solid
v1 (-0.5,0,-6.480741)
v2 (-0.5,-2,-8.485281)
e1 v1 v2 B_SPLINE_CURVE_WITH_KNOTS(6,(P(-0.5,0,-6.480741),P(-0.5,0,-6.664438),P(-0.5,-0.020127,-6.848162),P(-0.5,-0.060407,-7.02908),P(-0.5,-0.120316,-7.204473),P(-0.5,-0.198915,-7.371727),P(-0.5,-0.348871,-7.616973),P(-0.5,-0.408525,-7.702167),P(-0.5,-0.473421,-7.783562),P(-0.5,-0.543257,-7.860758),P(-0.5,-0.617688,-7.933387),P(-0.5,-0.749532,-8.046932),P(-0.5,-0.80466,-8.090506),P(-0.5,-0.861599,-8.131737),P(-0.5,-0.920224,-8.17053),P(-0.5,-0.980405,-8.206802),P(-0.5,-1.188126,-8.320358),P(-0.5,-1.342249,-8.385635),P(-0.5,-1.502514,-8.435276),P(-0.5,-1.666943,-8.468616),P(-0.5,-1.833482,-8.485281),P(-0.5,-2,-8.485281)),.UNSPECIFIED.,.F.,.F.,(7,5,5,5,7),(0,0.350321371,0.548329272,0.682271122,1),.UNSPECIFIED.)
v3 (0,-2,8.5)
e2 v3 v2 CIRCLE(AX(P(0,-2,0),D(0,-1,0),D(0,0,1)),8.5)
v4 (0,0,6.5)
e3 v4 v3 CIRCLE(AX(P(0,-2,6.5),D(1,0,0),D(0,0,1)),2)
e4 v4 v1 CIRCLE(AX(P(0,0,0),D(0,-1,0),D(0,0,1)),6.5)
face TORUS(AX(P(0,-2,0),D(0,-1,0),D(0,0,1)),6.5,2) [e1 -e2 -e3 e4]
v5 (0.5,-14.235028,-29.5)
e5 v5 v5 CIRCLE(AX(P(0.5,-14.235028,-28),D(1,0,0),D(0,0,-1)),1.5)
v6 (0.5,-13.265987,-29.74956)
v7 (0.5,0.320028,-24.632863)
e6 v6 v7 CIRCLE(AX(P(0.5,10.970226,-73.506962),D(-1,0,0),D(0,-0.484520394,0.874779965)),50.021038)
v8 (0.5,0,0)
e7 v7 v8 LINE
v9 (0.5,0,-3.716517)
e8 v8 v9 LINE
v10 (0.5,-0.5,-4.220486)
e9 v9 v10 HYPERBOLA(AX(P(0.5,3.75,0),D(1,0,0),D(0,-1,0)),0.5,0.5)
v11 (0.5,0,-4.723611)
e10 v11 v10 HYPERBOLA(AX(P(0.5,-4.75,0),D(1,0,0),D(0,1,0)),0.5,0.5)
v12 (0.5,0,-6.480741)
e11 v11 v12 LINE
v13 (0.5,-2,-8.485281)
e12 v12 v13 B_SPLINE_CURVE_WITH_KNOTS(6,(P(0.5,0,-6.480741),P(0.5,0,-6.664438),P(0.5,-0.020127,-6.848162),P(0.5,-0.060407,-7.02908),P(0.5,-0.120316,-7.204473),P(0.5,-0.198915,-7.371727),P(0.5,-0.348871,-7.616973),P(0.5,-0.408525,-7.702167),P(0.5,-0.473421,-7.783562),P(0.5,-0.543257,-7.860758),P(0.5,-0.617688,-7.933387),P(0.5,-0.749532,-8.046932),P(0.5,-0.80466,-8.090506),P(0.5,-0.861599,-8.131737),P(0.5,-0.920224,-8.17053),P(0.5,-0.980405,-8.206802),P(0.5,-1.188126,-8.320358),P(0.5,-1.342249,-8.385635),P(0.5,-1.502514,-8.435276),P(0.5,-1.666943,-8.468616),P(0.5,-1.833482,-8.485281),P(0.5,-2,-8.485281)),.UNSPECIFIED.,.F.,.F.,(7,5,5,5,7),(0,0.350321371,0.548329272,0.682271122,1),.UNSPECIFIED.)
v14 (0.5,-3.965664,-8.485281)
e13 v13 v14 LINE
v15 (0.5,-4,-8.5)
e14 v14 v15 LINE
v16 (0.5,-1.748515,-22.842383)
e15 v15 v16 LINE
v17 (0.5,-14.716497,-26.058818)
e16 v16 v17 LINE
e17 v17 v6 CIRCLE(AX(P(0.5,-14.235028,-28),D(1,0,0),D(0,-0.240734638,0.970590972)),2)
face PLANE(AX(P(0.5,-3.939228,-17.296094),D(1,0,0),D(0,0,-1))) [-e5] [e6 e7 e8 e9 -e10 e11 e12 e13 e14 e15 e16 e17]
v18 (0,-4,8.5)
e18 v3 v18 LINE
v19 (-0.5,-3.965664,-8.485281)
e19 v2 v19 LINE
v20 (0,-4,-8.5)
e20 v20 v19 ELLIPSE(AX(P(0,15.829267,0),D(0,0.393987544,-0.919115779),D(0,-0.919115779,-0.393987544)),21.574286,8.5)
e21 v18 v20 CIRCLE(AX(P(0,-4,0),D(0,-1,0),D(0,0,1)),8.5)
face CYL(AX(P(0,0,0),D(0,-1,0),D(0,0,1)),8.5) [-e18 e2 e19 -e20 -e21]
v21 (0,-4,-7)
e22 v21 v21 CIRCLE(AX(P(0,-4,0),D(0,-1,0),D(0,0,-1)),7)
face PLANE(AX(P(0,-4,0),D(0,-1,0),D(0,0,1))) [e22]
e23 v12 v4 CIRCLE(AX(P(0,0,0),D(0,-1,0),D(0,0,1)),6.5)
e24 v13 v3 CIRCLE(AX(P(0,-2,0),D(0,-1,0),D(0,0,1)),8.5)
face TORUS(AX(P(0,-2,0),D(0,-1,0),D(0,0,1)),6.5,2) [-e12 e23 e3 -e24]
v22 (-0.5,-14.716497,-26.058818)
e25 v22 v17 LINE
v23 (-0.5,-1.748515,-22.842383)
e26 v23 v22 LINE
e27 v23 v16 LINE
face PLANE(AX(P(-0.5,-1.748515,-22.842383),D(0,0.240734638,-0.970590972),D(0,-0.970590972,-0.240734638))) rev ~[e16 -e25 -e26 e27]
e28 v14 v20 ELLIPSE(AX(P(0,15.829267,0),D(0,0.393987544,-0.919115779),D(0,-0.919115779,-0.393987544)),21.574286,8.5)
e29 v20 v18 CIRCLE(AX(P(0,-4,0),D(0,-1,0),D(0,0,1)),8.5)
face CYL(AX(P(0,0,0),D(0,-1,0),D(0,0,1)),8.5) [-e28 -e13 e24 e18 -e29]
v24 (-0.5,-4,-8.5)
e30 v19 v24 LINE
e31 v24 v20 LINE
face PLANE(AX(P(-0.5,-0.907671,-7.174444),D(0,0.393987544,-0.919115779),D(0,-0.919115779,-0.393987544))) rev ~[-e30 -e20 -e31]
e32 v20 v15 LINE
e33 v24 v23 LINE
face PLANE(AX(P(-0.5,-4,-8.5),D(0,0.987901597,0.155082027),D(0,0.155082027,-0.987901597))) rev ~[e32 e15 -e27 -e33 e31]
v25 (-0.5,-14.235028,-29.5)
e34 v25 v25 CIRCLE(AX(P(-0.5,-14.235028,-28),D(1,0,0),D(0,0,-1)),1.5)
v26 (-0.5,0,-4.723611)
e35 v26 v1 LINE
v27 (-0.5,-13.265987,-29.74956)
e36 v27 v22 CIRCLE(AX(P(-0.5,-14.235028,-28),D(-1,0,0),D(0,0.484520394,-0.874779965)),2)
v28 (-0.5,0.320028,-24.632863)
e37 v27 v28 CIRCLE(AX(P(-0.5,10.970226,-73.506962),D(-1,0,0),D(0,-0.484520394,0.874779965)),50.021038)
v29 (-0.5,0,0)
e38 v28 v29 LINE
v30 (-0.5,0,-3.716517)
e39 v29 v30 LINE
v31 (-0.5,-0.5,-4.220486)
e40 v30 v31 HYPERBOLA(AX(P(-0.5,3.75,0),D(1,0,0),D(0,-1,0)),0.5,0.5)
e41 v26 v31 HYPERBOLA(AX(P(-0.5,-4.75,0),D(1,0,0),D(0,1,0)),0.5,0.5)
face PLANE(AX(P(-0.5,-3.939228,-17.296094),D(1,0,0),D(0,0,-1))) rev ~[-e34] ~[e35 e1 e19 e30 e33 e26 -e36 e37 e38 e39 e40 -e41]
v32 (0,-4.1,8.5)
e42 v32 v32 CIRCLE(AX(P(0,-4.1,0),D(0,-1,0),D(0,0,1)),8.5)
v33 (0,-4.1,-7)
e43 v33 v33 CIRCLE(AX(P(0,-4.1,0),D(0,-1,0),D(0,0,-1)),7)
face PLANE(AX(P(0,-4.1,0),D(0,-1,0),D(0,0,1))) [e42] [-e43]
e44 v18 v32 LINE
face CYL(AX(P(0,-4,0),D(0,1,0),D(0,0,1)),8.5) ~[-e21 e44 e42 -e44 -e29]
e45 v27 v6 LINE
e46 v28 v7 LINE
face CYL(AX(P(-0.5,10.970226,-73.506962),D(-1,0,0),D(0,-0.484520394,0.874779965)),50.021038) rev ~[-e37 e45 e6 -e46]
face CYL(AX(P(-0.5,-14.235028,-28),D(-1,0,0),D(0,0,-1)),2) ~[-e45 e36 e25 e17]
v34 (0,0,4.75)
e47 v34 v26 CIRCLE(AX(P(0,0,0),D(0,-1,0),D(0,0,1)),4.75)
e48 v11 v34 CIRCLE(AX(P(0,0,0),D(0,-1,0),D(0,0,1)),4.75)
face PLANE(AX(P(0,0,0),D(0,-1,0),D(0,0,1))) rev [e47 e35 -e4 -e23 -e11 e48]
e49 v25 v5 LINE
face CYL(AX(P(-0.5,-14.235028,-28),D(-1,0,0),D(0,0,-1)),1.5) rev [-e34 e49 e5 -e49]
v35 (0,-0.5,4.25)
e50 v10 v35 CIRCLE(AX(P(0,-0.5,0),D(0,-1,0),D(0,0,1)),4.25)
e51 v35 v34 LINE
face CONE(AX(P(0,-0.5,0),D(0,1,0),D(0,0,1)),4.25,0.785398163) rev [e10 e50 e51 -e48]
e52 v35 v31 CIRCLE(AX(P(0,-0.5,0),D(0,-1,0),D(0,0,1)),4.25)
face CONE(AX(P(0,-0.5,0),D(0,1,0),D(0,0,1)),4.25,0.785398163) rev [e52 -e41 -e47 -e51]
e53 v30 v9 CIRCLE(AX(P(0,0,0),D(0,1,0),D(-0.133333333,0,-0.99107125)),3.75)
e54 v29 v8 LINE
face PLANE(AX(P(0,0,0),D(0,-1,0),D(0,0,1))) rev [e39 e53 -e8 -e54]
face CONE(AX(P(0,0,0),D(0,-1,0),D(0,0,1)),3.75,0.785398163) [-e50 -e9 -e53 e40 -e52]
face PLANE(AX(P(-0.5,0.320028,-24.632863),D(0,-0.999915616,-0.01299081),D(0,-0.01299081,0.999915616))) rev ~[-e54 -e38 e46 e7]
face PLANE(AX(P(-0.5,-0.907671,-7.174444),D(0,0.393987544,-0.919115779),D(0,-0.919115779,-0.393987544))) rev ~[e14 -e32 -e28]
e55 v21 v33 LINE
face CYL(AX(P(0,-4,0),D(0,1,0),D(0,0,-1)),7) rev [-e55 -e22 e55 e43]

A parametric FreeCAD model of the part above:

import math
import FreeCAD as App
import Part
import Sketcher

V = App.Vector


def edges_at(feature, points):
    """Names of the edges that pass closest to the given points."""
    edges = feature.Shape.Edges
    near = lambda p: min(range(len(edges)), key=lambda i: edges[i].distToShape(Part.Vertex(*p))[0])
    return sorted({f"Edge{near(p) + 1}" for p in points})

doc = App.newDocument("Part")
body = doc.addObject("PartDesign::Body", "Body")

sketch1 = body.newObject("Sketcher::SketchObject", "Sketch")
sketch1.AttachmentSupport = (doc.getObject("YZ_Plane"), [""])
sketch1.MapMode = "FlatFace"
sketch1.addGeometry(Part.LineSegment(V(0, 0, 0), V(0, 3.8, 0)), False)
sketch1.addGeometry(Part.LineSegment(V(0, 3.8, 0), V(-0.5, 4.2, 0)), False)
sketch1.addGeometry(Part.LineSegment(V(-0.5, 4.2, 0), V(0, 4.8, 0)), False)
sketch1.addGeometry(Part.LineSegment(V(0, 4.8, 0), V(0, 8.5, 0)), False)
sketch1.addGeometry(Part.LineSegment(V(0, 8.5, 0), V(-4, 8.5, 0)), False)
sketch1.addGeometry(Part.LineSegment(V(-4, 8.5, 0), V(-4, 0, 0)), False)
sketch1.addGeometry(Part.LineSegment(V(-4, 0, 0), V(0, 0, 0)), False)
sketch1.addConstraint(Sketcher.Constraint("Coincident", 0, 2, 1, 1))
sketch1.addConstraint(Sketcher.Constraint("Coincident", 1, 2, 2, 1))
sketch1.addConstraint(Sketcher.Constraint("Coincident", 2, 2, 3, 1))
sketch1.addConstraint(Sketcher.Constraint("Coincident", 3, 2, 4, 1))
sketch1.addConstraint(Sketcher.Constraint("Coincident", 4, 2, 5, 1))
sketch1.addConstraint(Sketcher.Constraint("Coincident", 5, 2, 6, 1))
sketch1.addConstraint(Sketcher.Constraint("Coincident", 6, 2, 0, 1))
sketch1.addConstraint(Sketcher.Constraint("Vertical", 0))
sketch1.addConstraint(Sketcher.Constraint("Vertical", 3))
sketch1.addConstraint(Sketcher.Constraint("Horizontal", 4))
sketch1.addConstraint(Sketcher.Constraint("Vertical", 5))
sketch1.addConstraint(Sketcher.Constraint("Horizontal", 6))
sketch1.addConstraint(Sketcher.Constraint("Coincident", 6, 2, -1, 1))
sketch1.addConstraint(Sketcher.Constraint("PointOnObject", 2, 2, -2))
sketch1.addConstraint(Sketcher.Constraint("Perpendicular", 1, 2))
sketch1.addConstraint(Sketcher.Constraint("Equal", 0, 3))
sketch1.addConstraint(Sketcher.Constraint("Equal", 1, 2))
sketch1.addConstraint(Sketcher.Constraint("DistanceX", 4, 2, 4, 1, 4.0))
sketch1.addConstraint(Sketcher.Constraint("DistanceY", 5, 2, 5, 1, 8.5))
sketch1.addConstraint(Sketcher.Constraint("DistanceY", 0, 2, 2, 2, 1.0))
revolution = body.newObject("PartDesign::Revolution", "Revolution")
revolution.Profile = sketch1
revolution.ReferenceAxis = (sketch1, ["H_Axis"])
revolution.Angle = 360
doc.recompute()

fillet = body.newObject("PartDesign::Fillet", "Fillet")
fillet.Base = (revolution, edges_at(revolution, [(0, 0, -8.5)]))
fillet.Radius = 2
body2 = doc.addObject("PartDesign::Body", "Body001")

sketch2 = body2.newObject("Sketcher::SketchObject", "Sketch001")
sketch2.AttachmentSupport = (doc.getObject("XZ_Plane001"), [""])
sketch2.MapMode = "FlatFace"
sketch2.AttachmentOffset = App.Placement(V(0, 0, 4), App.Rotation())
sketch2.addGeometry(Part.Circle(V(0, 0, 0), V(0, 0, 1), 8), False)
sketch2.addGeometry(Part.Circle(V(0, 0, 0), V(0, 0, 1), 7), False)
sketch2.addConstraint(Sketcher.Constraint("Coincident", 0, 3, -1, 1))
sketch2.addConstraint(Sketcher.Constraint("Coincident", 1, 3, -1, 1))
sketch2.addConstraint(Sketcher.Constraint("Diameter", 0, 17.0))
sketch2.addConstraint(Sketcher.Constraint("Diameter", 1, 14.0))
pad1 = body2.newObject("PartDesign::Pad", "Pad")
pad1.Profile = sketch2
pad1.Length = 0.1
doc.recompute()

boolean = body.newObject("PartDesign::Boolean", "Boolean")
boolean.Type = "Fuse"
boolean.addObjects([body2])

sketch3 = body.newObject("Sketcher::SketchObject", "Sketch002")
sketch3.AttachmentSupport = (doc.getObject("YZ_Plane"), [""])
sketch3.MapMode = "FlatFace"
sketch3.addGeometry(Part.LineSegment(V(0.320028, -24.632863, 0), V(0, 0, 0)), False)
sketch3.addGeometry(Part.LineSegment(V(0, 0, 0), V(-0.907671, 0, 0)), False)
sketch3.addGeometry(Part.LineSegment(V(-0.907671, 0, 0), V(-0.907671, -7.174444, 0)), False)
sketch3.addGeometry(Part.LineSegment(V(-0.907671, -7.174444, 0), V(-4, -8.5, 0)), False)
sketch3.addGeometry(Part.LineSegment(V(-4, -8.5, 0), V(-1.748515, -22.842383, 0)), False)
sketch3.addGeometry(Part.LineSegment(V(-1.748515, -22.842383, 0), V(-14.716497, -26.058818, 0)), False)
sketch3.addGeometry(Part.ArcOfCircle(Part.Circle(V(-14.235028, -28, 0), V(0, 0, 1), 2), math.radians(103.929903), math.radians(298.981055)), False)
sketch3.addGeometry(Part.ArcOfCircle(Part.Circle(V(10.970226, -73.506962, 0), V(0, 0, 1), 50.021038), math.radians(102.293197), math.radians(118.981055)), False)
sketch3.addGeometry(Part.Circle(V(-14.235028, -28, 0), V(0, 0, 1), 1.5), False)
sketch3.addConstraint(Sketcher.Constraint("Coincident", 0, 2, 1, 1))
sketch3.addConstraint(Sketcher.Constraint("Coincident", 1, 2, 2, 1))
sketch3.addConstraint(Sketcher.Constraint("Coincident", 2, 2, 3, 1))
sketch3.addConstraint(Sketcher.Constraint("Coincident", 3, 2, 4, 1))
sketch3.addConstraint(Sketcher.Constraint("Coincident", 4, 2, 5, 1))
sketch3.addConstraint(Sketcher.Constraint("Coincident", 5, 2, 6, 1))
sketch3.addConstraint(Sketcher.Constraint("Coincident", 6, 2, 7, 2))
sketch3.addConstraint(Sketcher.Constraint("Coincident", 7, 1, 0, 1))
sketch3.addConstraint(Sketcher.Constraint("Horizontal", 1))
sketch3.addConstraint(Sketcher.Constraint("Vertical", 2))
sketch3.addConstraint(Sketcher.Constraint("Coincident", 0, 2, -1, 1))
sketch3.addConstraint(Sketcher.Constraint("Coincident", 8, 3, 6, 3))
sketch3.addConstraint(Sketcher.Constraint("Diameter", 8, 3.0))
sketch3.addConstraint(Sketcher.Constraint("Radius", 6, 2.0))
sketch3.addConstraint(Sketcher.Constraint("DistanceY", 6, 3, -1, 1, 28.0))
sketch3.addConstraint(Sketcher.Constraint("DistanceX", 3, 2, -1, 1, 4.0))
sketch3.addConstraint(Sketcher.Constraint("DistanceY", 3, 2, -1, 1, 8.5))
sketch3.addConstraint(Sketcher.Constraint("Radius", 7, 50.021038))
sketch3.addConstraint(Sketcher.Constraint("DistanceX", 1, 2, 1, 1, 0.907671))
sketch3.addConstraint(Sketcher.Constraint("Distance", 0, 24.634942))
sketch3.addConstraint(Sketcher.Constraint("Distance", 3, 3.364461))
sketch3.addConstraint(Sketcher.Constraint("Distance", 4, 14.518028))
sketch3.addConstraint(Sketcher.Constraint("DistanceX", 6, 3, -1, 1, 14.235028))
sketch3.addConstraint(Sketcher.Constraint("DistanceY", 7, 3, -1, 1, 73.506962))
sketch3.addConstraint(Sketcher.Constraint("DistanceY", 5, 2, -1, 1, 26.058818))
sketch3.addConstraint(Sketcher.Constraint("DistanceY", 6, 2, -1, 1, 29.74956))
sketch3.addConstraint(Sketcher.Constraint("DistanceY", 4, 2, 2, 2, 15.667939))
pad2 = body.newObject("PartDesign::Pad", "Pad001")
pad2.Profile = sketch3
pad2.Type = "TwoLengths"
pad2.Length = 0.5
pad2.Length2 = 0.5

doc.recompute()
